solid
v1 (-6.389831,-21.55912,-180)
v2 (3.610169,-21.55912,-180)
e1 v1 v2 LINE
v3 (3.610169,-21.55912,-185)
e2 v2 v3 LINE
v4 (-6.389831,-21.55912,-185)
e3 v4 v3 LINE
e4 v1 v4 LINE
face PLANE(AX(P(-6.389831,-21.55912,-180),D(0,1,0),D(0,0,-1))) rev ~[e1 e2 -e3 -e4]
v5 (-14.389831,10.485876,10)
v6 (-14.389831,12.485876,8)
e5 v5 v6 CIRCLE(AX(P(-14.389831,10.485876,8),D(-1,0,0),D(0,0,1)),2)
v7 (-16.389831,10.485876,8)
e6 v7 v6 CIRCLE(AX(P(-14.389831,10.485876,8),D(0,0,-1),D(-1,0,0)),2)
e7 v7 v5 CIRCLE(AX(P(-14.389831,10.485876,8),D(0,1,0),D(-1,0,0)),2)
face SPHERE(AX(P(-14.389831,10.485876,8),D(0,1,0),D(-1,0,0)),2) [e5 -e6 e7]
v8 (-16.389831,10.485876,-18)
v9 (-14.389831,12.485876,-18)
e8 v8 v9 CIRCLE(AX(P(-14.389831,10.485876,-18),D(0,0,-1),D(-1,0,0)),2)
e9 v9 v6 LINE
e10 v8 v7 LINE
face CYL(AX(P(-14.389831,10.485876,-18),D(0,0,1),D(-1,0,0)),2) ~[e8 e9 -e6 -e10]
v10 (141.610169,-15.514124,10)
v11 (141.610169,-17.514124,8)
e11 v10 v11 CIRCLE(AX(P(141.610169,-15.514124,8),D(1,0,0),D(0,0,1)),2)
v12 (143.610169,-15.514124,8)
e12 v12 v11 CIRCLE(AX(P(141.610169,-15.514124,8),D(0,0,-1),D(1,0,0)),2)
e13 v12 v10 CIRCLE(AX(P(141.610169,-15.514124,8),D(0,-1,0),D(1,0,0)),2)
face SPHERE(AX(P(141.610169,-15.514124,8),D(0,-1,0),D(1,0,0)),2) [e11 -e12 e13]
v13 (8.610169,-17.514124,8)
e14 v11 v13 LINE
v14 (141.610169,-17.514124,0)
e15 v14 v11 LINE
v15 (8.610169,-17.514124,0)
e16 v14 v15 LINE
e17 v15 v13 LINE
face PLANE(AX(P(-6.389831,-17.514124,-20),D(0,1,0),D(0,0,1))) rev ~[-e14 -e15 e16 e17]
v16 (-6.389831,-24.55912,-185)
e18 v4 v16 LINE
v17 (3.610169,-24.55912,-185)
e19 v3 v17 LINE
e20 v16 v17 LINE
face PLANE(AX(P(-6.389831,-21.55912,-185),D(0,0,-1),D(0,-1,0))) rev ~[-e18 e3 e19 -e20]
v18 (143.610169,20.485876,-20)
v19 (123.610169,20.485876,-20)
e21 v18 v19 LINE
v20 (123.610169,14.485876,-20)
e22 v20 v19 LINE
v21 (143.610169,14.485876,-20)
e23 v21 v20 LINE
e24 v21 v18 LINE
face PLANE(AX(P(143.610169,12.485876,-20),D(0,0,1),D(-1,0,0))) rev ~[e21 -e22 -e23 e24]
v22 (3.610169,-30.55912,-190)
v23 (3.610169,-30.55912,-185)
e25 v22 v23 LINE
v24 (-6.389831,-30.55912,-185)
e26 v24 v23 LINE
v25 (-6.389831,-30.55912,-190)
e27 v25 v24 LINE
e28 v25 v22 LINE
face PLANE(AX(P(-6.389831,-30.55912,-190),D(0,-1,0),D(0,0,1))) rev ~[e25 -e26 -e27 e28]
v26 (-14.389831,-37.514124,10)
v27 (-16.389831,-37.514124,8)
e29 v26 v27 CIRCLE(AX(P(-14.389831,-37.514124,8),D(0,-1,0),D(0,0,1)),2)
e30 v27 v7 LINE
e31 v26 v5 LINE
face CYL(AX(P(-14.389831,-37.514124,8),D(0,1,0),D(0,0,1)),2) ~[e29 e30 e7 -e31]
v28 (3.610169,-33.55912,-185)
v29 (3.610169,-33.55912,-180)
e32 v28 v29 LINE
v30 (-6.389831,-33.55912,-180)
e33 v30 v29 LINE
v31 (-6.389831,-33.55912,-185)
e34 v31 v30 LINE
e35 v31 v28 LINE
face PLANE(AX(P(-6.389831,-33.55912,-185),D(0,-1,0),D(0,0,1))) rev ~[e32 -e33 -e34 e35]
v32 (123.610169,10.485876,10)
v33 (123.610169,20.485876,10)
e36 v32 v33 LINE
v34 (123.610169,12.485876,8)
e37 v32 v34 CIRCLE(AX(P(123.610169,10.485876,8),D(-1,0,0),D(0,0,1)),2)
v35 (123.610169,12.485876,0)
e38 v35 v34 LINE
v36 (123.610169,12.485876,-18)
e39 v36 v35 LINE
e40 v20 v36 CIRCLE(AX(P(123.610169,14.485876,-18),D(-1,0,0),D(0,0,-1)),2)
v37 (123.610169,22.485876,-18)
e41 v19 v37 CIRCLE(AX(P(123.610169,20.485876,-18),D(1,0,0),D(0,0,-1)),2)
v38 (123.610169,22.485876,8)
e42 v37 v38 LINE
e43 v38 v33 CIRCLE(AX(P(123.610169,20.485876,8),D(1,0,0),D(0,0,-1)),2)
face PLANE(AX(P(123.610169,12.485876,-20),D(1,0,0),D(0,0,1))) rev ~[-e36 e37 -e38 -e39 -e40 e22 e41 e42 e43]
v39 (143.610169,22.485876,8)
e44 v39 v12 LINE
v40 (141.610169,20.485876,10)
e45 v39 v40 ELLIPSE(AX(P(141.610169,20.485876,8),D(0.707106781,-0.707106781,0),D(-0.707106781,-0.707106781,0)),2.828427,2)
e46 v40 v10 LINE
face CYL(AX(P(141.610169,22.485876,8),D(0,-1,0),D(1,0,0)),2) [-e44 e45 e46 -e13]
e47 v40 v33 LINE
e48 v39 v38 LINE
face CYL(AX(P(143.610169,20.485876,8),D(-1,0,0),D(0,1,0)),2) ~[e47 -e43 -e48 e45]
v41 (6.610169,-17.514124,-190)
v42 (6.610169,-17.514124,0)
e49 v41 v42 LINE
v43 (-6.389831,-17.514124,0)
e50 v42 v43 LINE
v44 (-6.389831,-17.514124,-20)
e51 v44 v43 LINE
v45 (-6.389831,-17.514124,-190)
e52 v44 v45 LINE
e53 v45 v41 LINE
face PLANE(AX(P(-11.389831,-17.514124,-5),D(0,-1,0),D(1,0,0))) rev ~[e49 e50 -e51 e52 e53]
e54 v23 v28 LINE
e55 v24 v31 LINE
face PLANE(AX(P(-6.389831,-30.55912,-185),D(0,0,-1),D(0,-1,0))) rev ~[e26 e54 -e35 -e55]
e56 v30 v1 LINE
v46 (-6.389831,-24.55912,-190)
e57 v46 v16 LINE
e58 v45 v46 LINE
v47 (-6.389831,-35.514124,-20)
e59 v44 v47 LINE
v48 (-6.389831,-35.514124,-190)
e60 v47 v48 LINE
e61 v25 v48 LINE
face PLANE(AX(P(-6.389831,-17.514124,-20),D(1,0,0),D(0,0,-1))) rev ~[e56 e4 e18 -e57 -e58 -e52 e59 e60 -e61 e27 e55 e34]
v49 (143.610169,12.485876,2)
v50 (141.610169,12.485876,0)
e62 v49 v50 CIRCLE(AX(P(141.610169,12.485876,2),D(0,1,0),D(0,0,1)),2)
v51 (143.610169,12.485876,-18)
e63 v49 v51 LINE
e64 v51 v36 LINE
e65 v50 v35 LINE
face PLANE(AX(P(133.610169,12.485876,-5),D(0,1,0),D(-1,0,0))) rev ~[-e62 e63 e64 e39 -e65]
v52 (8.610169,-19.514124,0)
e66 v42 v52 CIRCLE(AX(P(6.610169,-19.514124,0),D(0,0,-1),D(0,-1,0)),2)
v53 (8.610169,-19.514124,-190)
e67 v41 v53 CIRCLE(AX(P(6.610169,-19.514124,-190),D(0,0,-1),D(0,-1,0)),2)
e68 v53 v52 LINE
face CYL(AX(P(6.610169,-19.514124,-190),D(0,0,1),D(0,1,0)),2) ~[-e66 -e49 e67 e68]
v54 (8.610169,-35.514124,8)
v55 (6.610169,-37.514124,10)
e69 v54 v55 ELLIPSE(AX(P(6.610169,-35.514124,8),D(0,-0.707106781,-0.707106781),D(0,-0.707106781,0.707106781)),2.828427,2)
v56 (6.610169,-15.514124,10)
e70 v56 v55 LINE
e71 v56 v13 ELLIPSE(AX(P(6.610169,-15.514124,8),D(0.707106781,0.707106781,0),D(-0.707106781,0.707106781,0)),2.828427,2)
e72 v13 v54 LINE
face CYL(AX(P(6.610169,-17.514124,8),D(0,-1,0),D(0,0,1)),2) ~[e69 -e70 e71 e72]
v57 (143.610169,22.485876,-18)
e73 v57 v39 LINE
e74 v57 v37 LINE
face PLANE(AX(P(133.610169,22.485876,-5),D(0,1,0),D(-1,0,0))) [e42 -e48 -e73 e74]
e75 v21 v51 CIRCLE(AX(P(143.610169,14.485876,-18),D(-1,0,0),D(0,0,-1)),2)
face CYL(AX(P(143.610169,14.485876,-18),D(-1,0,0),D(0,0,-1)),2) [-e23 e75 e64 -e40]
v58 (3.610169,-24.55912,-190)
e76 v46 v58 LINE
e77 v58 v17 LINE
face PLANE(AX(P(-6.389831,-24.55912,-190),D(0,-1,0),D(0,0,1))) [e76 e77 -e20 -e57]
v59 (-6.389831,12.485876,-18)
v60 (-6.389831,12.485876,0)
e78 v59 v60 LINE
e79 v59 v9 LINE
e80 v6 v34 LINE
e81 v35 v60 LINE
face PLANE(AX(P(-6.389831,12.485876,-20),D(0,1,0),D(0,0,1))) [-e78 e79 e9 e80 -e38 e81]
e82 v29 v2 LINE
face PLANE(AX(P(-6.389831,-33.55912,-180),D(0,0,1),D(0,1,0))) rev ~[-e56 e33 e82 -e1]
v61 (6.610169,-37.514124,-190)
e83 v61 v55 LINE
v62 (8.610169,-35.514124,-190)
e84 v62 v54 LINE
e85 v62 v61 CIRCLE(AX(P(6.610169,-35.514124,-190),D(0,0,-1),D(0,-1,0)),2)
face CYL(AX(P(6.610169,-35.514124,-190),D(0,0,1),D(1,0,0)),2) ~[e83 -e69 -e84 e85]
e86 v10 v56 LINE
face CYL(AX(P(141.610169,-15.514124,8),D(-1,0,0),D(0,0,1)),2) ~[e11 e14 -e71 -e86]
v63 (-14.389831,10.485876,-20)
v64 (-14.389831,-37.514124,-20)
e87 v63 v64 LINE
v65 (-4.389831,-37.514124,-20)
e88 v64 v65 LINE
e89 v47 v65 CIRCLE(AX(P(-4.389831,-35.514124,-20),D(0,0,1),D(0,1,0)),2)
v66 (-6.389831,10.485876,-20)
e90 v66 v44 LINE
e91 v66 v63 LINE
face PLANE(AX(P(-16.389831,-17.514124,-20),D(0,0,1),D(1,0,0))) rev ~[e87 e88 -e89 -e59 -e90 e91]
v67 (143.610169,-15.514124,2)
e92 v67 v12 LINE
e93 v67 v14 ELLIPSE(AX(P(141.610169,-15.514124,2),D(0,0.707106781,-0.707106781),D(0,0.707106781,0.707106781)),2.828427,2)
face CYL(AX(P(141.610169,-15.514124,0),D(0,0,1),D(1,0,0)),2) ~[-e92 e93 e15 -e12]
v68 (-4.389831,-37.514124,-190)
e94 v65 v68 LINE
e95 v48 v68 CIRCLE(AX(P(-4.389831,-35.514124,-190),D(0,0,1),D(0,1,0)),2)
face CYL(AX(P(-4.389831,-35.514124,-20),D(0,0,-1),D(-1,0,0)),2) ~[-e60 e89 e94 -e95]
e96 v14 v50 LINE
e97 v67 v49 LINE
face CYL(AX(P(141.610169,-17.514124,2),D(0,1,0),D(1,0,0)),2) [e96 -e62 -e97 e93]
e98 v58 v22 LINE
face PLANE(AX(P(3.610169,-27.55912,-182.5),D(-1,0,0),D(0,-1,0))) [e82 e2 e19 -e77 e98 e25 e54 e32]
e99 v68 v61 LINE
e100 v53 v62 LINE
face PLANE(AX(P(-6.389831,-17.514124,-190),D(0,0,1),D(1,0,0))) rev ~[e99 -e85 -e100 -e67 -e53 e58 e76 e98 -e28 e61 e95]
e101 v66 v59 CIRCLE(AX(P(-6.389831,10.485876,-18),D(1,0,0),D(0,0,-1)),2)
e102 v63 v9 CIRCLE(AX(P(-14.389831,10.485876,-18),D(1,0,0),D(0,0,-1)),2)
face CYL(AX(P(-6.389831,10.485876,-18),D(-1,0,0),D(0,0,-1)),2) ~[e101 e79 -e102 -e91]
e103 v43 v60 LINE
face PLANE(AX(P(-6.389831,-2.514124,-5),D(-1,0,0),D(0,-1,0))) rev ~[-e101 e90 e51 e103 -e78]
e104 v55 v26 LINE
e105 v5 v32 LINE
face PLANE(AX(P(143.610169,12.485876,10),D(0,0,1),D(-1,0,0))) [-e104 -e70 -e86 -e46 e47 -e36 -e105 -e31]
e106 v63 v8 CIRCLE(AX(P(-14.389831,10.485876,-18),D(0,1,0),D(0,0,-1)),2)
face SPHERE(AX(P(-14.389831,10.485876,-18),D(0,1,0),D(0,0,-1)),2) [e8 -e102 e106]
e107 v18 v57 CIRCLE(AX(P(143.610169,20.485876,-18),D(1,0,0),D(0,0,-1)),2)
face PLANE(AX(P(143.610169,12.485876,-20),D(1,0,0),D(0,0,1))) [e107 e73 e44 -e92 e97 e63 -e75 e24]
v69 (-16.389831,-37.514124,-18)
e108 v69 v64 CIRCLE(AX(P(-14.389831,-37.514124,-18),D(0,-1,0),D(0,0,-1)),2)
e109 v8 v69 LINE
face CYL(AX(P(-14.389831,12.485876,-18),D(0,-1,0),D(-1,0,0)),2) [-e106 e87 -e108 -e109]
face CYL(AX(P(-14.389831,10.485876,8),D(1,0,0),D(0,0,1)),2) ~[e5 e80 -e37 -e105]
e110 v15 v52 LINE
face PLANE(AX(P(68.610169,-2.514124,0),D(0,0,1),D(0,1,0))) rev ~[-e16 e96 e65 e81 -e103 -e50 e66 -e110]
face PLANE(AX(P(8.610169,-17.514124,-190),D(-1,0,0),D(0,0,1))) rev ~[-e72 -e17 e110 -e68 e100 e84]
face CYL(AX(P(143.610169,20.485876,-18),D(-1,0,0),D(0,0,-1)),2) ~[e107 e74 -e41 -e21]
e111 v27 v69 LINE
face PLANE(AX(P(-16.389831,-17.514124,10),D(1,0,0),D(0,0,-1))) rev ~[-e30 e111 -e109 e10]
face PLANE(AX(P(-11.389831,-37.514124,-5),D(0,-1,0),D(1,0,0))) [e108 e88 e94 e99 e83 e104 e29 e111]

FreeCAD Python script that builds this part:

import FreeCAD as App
import Part
import Sketcher
from FreeCAD import Vector


def edges_at(feature, points):
    """Names of the edges that pass closest to the given points."""
    edges = feature.Shape.Edges
    near = lambda p: min(range(len(edges)), key=lambda i: edges[i].distToShape(Part.Vertex(*p))[0])
    return sorted({f"Edge{near(p) + 1}" for p in points})


def add_polygon(sketch, points):
    """Adds a closed chain of lines whose ends are joined by coincident constraints."""
    first, n = sketch.GeometryCount, len(points)
    for a, b in zip(points, points[1:] + points[:1]):
        sketch.addGeometry(Part.LineSegment(App.Vector(*a, 0), App.Vector(*b, 0)), False)
    for i in range(n):
        sketch.addConstraint(Sketcher.Constraint("Coincident", first + i, 2, first + (i + 1) % n, 1))

doc = App.newDocument("Part")
body = doc.addObject("PartDesign::Body", "Body")

sketch1 = body.newObject("Sketcher::SketchObject", "Sketch")
sketch1.AttachmentSupport = (doc.getObject("XY_Plane"), [""])
sketch1.MapMode = "FlatFace"
add_polygon(sketch1, [(-6, -18), (144, -18), (144, 12), (-6, 12)])
sketch1.addConstraint([
    Sketcher.Constraint("Horizontal", 0),
    Sketcher.Constraint("Vertical", 1),
    Sketcher.Constraint("Horizontal", 2),
    Sketcher.Constraint("Vertical", 3),
    Sketcher.Constraint("DistanceX", 0, 1, 0, 2, 150.0),
    Sketcher.Constraint("DistanceY", 1, 1, 1, 2, 30.0),
    Sketcher.Constraint("DistanceX", -1, 1, 0, 2, 143.610169),
    Sketcher.Constraint("DistanceY", 0, 2, -1, 1, 17.514124),
])
pad1 = body.newObject("PartDesign::Pad", "Pad")
pad1.Profile = sketch1
pad1.Length = 10

sketch2 = body.newObject("Sketcher::SketchObject", "Sketch001")
sketch2.AttachmentSupport = (doc.getObject("YZ_Plane"), [""])
sketch2.MapMode = "FlatFace"
sketch2.AttachmentOffset = App.Placement(Vector(0, 0, -6.389831), App.Rotation())
add_polygon(sketch2, [(12, 10), (12, -20), (-18, -20), (-18, 10)])
sketch2.addConstraint([
    Sketcher.Constraint("Vertical", 0),
    Sketcher.Constraint("Horizontal", 1),
    Sketcher.Constraint("Vertical", 2),
    Sketcher.Constraint("Horizontal", 3),
    Sketcher.Constraint("Equal", 3, 0),
    Sketcher.Constraint("DistanceX", 1, 2, 1, 1, 30.0),
    Sketcher.Constraint("DistanceY", 0, 2, -1, 1, 20.0),
    Sketcher.Constraint("DistanceX", -1, 1, 0, 2, 12.485876),
])
pad2 = body.newObject("PartDesign::Pad", "Pad001")
pad2.Profile = sketch2
pad2.Length = 10
pad2.Reversed = True

sketch3 = body.newObject("Sketcher::SketchObject", "Sketch002")
sketch3.AttachmentSupport = (doc.getObject("XZ_Plane"), [""])
sketch3.MapMode = "FlatFace"
sketch3.AttachmentOffset = App.Placement(Vector(0, 0, 17.514124), App.Rotation())
add_polygon(sketch3, [(-16, 10), (-16, -20), (-6, -20), (-6, -190), (9, -190), (9, 10)])
sketch3.addConstraint([
    Sketcher.Constraint("Vertical", 0),
    Sketcher.Constraint("Horizontal", 1),
    Sketcher.Constraint("Vertical", 2),
    Sketcher.Constraint("Horizontal", 3),
    Sketcher.Constraint("Vertical", 4),
    Sketcher.Constraint("Horizontal", 5),
    Sketcher.Constraint("DistanceX", 1, 1, 1, 2, 10.0),
    Sketcher.Constraint("DistanceX", 3, 1, 3, 2, 15.0),
    Sketcher.Constraint("DistanceY", 0, 2, 0, 1, 30.0),
    Sketcher.Constraint("DistanceY", 2, 2, 2, 1, 170.0),
    Sketcher.Constraint("DistanceY", 0, 2, -1, 1, 20.0),
    Sketcher.Constraint("DistanceX", 0, 2, -1, 1, 16.389831),
])
pad3 = body.newObject("PartDesign::Pad", "Pad002")
pad3.Profile = sketch3
pad3.Length = 20

sketch4 = body.newObject("Sketcher::SketchObject", "Sketch003")
sketch4.AttachmentSupport = (doc.getObject("XZ_Plane"), [""])
sketch4.MapMode = "FlatFace"
sketch4.AttachmentOffset = App.Placement(Vector(0, 0, -12.485876), App.Rotation())
add_polygon(sketch4, [(144, 10), (144, -20), (124, -20), (124, 10)])
sketch4.addConstraint([
    Sketcher.Constraint("Vertical", 0),
    Sketcher.Constraint("Horizontal", 1),
    Sketcher.Constraint("Vertical", 2),
    Sketcher.Constraint("Horizontal", 3),
    Sketcher.Constraint("DistanceX", 1, 2, 1, 1, 20.0),
    Sketcher.Constraint("DistanceY", 0, 2, 0, 1, 30.0),
    Sketcher.Constraint("DistanceY", 0, 2, -1, 1, 20.0),
    Sketcher.Constraint("DistanceX", -1, 1, 0, 2, 143.610169),
])
pad4 = body.newObject("PartDesign::Pad", "Pad003")
pad4.Profile = sketch4
pad4.Length = 10
pad4.Reversed = True

sketch5 = body.newObject("Sketcher::SketchObject", "Sketch004")
sketch5.AttachmentSupport = (doc.getObject("YZ_Plane"), [""])
sketch5.MapMode = "FlatFace"
sketch5.AttachmentOffset = App.Placement(Vector(0, 0, -6.389831), App.Rotation())
add_polygon(sketch5, [(-33.6, -185), (-33.6, -180), (-21.6, -180), (-21.6, -185), (-24.6, -185), (-24.6, -190), (-30.6, -190), (-30.6, -185)])
sketch5.addConstraint([
    Sketcher.Constraint("Vertical", 0),
    Sketcher.Constraint("Horizontal", 1),
    Sketcher.Constraint("Vertical", 2),
    Sketcher.Constraint("Horizontal", 3),
    Sketcher.Constraint("Vertical", 4),
    Sketcher.Constraint("Horizontal", 5),
    Sketcher.Constraint("Vertical", 6),
    Sketcher.Constraint("Horizontal", 7),
    Sketcher.Constraint("Horizontal", 3, 2, 6, 2),
    Sketcher.Constraint("Equal", 3, 7),
    Sketcher.Constraint("Equal", 2, 4),
    Sketcher.Constraint("DistanceX", 1, 1, 1, 2, 12.0),
    Sketcher.Constraint("DistanceX", 3, 2, 3, 1, 3.0),
    Sketcher.Constraint("DistanceY", 0, 1, 0, 2, 5.0),
    Sketcher.Constraint("DistanceY", 0, 2, -1, 1, 180.0),
    Sketcher.Constraint("DistanceX", 0, 2, -1, 1, 33.55912),
])
pocket1 = body.newObject("PartDesign::Pocket", "Pocket")
pocket1.Profile = sketch5
pocket1.Length = 10
pocket1.Reversed = True
doc.recompute()

fillet = body.newObject("PartDesign::Fillet", "Fillet")
fillet.Base = (pocket1, edges_at(pocket1, [
    (133.61, 12.486, -20),
    (133.61, 22.486, -20),
    (133.61, 22.486, 10),
    (143.61, 2.486, 10),
    (-16.39, -12.514, 10),
    (-16.39, -12.514, -20),
]))
fillet.Radius = 2
doc.recompute()

fillet2 = body.newObject("PartDesign::Fillet", "Fillet001")
fillet2.Base = (fillet, edges_at(fillet, [
    (143.61, -17.514, 4),
    (143.024, -17.514, 9.414),
    (75.11, -17.514, 10),
    (8.61, -37.514, -90),
    (8.61, -27.514, 10),
    (-6.39, -37.514, -105),
    (143.61, -2.514, 0),
]))
fillet2.Radius = 2
doc.recompute()

fillet3 = body.newObject("PartDesign::Fillet", "Fillet002")
fillet3.Base = (fillet2, edges_at(fillet2, [(8.61, -17.514, -95)]))
fillet3.Radius = 2
doc.recompute()

fillet4 = body.newObject("PartDesign::Fillet", "Fillet003")
fillet4.Base = (fillet3, edges_at(fillet3, [
    (-16.39, 12.486, -5),
    (-10.39, 12.486, -20),
    (-15.804, 12.486, -19.414),
    (-15.804, 12.486, 9.414),
    (54.61, 12.486, 10),
]))
fillet4.Radius = 2

doc.recompute()
